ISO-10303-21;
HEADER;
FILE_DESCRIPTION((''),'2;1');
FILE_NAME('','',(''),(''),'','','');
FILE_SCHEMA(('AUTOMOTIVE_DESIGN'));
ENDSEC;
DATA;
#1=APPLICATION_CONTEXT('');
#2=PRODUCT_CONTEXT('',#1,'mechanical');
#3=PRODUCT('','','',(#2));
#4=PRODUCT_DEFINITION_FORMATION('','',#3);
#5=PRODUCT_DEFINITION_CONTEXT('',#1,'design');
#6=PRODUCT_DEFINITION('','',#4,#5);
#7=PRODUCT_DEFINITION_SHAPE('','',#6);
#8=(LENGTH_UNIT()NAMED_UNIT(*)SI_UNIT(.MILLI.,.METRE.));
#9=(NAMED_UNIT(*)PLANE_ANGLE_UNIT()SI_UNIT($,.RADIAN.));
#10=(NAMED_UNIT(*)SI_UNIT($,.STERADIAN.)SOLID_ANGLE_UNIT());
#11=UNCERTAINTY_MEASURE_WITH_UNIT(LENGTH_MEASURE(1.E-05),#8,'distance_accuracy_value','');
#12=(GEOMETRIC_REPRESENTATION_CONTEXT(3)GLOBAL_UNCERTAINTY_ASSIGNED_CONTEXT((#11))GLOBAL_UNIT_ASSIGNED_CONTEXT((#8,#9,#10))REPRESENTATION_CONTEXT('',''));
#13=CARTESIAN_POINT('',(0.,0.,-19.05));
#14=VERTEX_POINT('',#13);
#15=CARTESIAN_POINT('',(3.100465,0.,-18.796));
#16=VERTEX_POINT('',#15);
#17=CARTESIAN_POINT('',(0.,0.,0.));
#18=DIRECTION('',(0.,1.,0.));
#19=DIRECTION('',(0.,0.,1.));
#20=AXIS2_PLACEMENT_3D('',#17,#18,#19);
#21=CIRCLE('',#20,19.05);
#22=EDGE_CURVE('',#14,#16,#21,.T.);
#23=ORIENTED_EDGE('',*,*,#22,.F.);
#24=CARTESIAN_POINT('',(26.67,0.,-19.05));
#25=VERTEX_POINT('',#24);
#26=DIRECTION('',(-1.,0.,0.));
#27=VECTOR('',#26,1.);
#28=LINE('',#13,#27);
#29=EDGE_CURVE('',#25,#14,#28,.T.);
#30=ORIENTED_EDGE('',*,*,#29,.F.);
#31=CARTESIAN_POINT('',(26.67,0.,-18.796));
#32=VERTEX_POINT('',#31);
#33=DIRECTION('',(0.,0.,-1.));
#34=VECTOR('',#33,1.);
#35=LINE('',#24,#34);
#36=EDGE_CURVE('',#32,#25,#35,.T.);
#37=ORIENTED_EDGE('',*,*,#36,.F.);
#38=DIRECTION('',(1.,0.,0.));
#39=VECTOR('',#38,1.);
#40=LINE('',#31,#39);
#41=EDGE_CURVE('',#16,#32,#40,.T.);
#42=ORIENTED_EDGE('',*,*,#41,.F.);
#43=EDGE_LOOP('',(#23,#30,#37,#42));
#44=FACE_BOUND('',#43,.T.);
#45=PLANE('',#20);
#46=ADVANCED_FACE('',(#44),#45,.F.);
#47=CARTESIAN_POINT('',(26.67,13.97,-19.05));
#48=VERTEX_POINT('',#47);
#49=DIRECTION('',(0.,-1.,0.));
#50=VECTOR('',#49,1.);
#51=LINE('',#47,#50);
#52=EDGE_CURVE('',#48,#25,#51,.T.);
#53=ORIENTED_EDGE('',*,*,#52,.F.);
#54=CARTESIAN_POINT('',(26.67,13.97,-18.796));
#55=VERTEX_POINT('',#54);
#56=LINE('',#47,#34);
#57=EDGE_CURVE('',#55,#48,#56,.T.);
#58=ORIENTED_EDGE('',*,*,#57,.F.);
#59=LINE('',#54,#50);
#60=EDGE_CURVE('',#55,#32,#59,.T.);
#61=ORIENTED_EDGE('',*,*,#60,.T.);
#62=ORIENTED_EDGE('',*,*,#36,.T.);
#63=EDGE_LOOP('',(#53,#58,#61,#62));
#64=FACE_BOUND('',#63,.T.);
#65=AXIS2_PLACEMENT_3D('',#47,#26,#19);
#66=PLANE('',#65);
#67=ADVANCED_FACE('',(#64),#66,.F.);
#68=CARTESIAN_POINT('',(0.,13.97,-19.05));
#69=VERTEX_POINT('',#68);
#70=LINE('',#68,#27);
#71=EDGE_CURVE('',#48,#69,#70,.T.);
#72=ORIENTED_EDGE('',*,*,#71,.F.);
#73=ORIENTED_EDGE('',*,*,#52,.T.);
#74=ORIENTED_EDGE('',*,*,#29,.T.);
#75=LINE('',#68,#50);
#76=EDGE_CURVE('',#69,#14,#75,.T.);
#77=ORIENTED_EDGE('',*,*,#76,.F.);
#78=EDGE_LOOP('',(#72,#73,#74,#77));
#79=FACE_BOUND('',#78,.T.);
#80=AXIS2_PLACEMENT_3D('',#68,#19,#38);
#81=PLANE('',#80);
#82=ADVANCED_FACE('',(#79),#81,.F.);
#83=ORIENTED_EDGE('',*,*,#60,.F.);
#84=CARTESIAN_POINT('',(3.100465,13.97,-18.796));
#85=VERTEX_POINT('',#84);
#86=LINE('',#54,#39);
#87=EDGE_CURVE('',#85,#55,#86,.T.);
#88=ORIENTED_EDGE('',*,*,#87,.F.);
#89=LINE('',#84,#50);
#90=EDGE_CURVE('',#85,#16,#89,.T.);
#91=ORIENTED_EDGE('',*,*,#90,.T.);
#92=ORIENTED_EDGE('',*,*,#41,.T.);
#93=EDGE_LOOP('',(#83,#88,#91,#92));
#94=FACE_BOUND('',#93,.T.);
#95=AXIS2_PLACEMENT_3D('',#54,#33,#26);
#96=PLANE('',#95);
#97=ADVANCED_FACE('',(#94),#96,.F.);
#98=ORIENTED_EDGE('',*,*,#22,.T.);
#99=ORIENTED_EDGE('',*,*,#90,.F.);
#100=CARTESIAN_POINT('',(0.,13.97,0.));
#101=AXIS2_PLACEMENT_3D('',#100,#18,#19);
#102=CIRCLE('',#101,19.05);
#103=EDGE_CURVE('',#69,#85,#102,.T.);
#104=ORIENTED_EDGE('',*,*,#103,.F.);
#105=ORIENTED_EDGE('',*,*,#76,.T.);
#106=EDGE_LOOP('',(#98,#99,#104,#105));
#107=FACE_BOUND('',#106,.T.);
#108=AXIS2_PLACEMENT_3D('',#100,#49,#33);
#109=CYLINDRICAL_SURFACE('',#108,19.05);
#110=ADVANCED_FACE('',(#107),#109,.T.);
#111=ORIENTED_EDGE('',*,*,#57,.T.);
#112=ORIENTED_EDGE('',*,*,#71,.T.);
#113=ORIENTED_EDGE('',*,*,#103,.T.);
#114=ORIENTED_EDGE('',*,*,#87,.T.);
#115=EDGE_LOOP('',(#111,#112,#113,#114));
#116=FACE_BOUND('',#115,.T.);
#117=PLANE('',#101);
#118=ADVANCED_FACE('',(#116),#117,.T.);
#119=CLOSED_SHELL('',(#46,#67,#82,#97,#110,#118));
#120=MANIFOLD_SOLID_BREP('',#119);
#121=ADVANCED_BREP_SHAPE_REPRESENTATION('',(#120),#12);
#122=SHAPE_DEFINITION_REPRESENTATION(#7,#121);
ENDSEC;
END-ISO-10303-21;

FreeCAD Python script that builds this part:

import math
import FreeCAD as App
import Part
import Sketcher
Q = App.Units.Quantity

doc = App.newDocument("Part")
params = doc.addObject("Spreadsheet::Sheet", "Params")
for row, (alias, value) in enumerate([
    ("sketch1_radius", "0.75 in"),
    ("sketch1_width", "1.05 in"),
    ("sketch1_height", "0.01 in"),
    ("pad1_length", "0.55 in"),
], start=1):
    params.set(f"A{row}", alias)
    params.set(f"B{row}", "=" + value)
    params.setAlias(f"B{row}", alias)

body = doc.addObject("PartDesign::Body", "Body")

# Sketch on XZ plane
sketch1 = body.newObject("Sketcher::SketchObject", "Sketch")
sketch1.AttachmentSupport = (doc.getObject("XZ_Plane"), [""])
sketch1.MapMode = "FlatFace"
sketch1.addGeometry([
    Part.LineSegment(App.Vector(26.67, -19.05, 0), App.Vector(0, -19.05, 0)),
    Part.ArcOfCircle(Part.Circle(App.Vector(0, 0, 0), App.Vector(0, 0, 1), 19.05), math.radians(-80.633211), math.radians(270)),
    Part.LineSegment(App.Vector(3.100465, -18.796, 0), App.Vector(26.67, -18.796, 0)),
    Part.LineSegment(App.Vector(26.67, -18.796, 0), App.Vector(26.67, -19.05, 0)),
], False)
sketch1.addConstraint([
    Sketcher.Constraint("Tangent", 0, 2, 1, 2),
    Sketcher.Constraint("Coincident", 1, 1, 2, 1),
    Sketcher.Constraint("Coincident", 2, 2, 3, 1),
    Sketcher.Constraint("Coincident", 3, 2, 0, 1),
    Sketcher.Constraint("Horizontal", 0),
    Sketcher.Constraint("Horizontal", 2),
    Sketcher.Constraint("Vertical", 3),
    Sketcher.Constraint("Coincident", 1, 3, -1, 1),
    Sketcher.Constraint("Radius", 1, Q("0.75 in")),
    Sketcher.Constraint("DistanceX", 0, 2, 0, 1, Q("1.05 in")),
    Sketcher.Constraint("DistanceY", 3, 2, 3, 1, Q("0.01 in")),
])
sketch1.setExpression("Constraints[8]", "Params.sketch1_radius")
sketch1.setExpression("Constraints[9]", "Params.sketch1_width")
sketch1.setExpression("Constraints[10]", "Params.sketch1_height")
pad1 = body.newObject("PartDesign::Pad", "Pad")
pad1.Profile = sketch1
pad1.setExpression("Length", "Params.pad1_length")
pad1.Reversed = True

doc.recompute()
